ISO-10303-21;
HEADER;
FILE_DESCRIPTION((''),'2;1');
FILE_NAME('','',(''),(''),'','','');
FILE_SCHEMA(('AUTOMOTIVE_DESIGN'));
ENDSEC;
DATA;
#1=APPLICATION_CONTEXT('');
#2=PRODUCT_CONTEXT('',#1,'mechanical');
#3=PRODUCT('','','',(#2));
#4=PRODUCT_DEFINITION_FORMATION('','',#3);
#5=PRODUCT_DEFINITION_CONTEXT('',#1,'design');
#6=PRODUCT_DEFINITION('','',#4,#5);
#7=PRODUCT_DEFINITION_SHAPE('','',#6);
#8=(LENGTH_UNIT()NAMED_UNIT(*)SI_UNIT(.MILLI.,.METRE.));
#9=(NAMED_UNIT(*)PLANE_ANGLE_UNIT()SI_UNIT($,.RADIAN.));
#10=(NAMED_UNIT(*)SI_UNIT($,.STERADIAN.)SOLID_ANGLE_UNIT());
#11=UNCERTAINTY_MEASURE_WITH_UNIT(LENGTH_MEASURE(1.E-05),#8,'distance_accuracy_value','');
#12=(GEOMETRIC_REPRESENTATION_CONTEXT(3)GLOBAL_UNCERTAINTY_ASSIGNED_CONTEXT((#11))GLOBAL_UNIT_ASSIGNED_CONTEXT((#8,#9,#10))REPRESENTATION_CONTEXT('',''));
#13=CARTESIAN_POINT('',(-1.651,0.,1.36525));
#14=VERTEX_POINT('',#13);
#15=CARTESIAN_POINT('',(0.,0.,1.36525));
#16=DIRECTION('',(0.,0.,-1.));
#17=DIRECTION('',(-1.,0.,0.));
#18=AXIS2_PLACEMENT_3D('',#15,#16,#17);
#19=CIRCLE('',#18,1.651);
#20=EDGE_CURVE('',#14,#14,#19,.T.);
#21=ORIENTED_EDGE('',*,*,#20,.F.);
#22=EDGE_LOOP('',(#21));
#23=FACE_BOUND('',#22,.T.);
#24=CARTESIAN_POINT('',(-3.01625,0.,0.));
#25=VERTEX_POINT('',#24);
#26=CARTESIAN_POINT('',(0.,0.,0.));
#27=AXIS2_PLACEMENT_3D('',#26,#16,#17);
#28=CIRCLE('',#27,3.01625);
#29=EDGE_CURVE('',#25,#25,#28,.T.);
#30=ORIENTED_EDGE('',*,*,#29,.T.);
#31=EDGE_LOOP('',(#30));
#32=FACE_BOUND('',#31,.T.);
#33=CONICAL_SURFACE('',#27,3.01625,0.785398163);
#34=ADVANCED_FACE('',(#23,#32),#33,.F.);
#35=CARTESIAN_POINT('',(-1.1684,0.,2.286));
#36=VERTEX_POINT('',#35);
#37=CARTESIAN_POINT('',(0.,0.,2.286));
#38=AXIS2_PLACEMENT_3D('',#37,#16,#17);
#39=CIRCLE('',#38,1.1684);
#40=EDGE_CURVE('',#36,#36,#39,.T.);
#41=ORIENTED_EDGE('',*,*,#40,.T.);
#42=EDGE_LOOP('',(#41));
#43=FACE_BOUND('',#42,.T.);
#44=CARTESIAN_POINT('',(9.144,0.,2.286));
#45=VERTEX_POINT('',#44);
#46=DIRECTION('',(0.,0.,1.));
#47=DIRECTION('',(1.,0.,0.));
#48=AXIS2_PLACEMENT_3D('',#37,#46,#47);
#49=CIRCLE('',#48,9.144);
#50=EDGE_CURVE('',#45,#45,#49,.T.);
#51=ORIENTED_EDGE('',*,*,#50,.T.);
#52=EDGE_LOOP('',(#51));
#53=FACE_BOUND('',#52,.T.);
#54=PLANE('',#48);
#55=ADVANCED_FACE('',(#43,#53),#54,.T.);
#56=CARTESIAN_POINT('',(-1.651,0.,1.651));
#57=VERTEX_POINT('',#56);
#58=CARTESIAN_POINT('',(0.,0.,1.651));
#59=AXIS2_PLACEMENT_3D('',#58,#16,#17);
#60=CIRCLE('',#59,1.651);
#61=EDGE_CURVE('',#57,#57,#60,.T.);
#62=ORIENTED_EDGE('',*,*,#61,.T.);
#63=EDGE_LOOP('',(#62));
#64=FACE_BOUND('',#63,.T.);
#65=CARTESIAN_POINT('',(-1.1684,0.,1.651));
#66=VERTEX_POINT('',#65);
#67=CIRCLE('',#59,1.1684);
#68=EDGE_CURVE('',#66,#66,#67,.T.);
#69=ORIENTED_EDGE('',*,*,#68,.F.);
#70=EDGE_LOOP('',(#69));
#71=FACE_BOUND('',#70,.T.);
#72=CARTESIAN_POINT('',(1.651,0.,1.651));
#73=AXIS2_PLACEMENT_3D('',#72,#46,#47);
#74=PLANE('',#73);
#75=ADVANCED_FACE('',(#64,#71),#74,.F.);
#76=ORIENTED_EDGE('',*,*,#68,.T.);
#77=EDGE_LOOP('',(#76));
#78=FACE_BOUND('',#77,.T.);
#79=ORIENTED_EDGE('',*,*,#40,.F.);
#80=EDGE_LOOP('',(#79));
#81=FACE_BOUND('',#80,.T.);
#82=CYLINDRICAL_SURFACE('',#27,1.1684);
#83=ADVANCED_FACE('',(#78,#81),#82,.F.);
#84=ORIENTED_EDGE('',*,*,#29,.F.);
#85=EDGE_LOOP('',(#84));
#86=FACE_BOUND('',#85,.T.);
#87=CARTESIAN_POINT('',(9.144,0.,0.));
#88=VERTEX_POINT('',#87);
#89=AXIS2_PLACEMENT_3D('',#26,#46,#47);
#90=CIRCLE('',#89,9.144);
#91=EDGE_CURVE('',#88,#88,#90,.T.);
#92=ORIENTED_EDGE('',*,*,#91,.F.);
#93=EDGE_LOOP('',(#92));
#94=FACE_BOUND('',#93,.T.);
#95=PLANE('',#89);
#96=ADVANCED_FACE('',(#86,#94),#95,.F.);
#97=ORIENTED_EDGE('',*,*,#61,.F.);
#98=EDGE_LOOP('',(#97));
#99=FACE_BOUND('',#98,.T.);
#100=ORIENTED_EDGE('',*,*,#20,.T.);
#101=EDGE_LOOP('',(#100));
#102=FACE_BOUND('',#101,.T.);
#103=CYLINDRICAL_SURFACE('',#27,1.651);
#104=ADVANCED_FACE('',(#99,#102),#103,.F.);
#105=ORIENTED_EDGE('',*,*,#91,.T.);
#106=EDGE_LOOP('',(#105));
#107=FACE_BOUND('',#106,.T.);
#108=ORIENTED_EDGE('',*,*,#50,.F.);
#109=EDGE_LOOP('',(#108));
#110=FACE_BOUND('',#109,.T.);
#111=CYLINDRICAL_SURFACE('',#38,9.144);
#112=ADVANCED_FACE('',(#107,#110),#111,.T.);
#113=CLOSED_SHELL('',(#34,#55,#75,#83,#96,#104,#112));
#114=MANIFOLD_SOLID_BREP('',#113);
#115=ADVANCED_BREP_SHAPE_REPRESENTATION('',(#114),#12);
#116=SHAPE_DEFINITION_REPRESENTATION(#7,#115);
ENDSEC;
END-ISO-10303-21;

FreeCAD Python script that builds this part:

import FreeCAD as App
import Part
import Sketcher
Q = App.Units.Quantity

doc = App.newDocument("Part")
params = doc.addObject("Spreadsheet::Sheet", "Params")
for row, (alias, value) in enumerate([
    ("sketch1_diameter", "0.72 in"),
    ("pad1_length", "0.09 in"),
    ("sketch2_height", "0.09 in"),
    ("sketch2_width", "0.019 in"),
    ("sketch2_width2", "0.046 in"),
    ("sketch2_height2", "0.025 in"),
    ("groove_angle", "360 deg"),
], start=1):
    params.set(f"A{row}", alias)
    params.set(f"B{row}", "=" + value)
    params.setAlias(f"B{row}", alias)

body = doc.addObject("PartDesign::Body", "Body")

# Sketch on XY plane
sketch1 = body.newObject("Sketcher::SketchObject", "Sketch")
sketch1.AttachmentSupport = (doc.getObject("XY_Plane"), [""])
sketch1.MapMode = "FlatFace"
sketch1.addGeometry(Part.Circle(App.Vector(0, 0, 0), App.Vector(0, 0, 1), 9.144), False)
sketch1.addConstraint([
    Sketcher.Constraint("Coincident", 0, 3, -1, 1),
    Sketcher.Constraint("Diameter", 0, Q("0.72 in")),
])
sketch1.setExpression("Constraints[1]", "Params.sketch1_diameter")
pad1 = body.newObject("PartDesign::Pad", "Pad")
pad1.Profile = sketch1
pad1.setExpression("Length", "Params.pad1_length")

# Sketch on YZ plane
sketch2 = body.newObject("Sketcher::SketchObject", "Sketch001")
sketch2.AttachmentSupport = (doc.getObject("YZ_Plane"), [""])
sketch2.MapMode = "FlatFace"
sketch2.addGeometry([
    Part.LineSegment(App.Vector(0, 2.286, 0), App.Vector(0, 0, 0)),  # 0
    Part.LineSegment(App.Vector(0, 0, 0), App.Vector(3.01625, 0, 0)),  # 1
    Part.LineSegment(App.Vector(3.01625, 0, 0), App.Vector(1.651, 1.36525, 0)),  # 2
    Part.LineSegment(App.Vector(1.651, 1.36525, 0), App.Vector(1.651, 1.651, 0)),  # 3
    Part.LineSegment(App.Vector(1.651, 1.651, 0), App.Vector(1.1684, 1.651, 0)),  # 4
    Part.LineSegment(App.Vector(1.1684, 1.651, 0), App.Vector(1.1684, 2.286, 0)),  # 5
    Part.LineSegment(App.Vector(1.1684, 2.286, 0), App.Vector(0, 2.286, 0)),  # 6
], False)
sketch2.addConstraint([
    Sketcher.Constraint("Coincident", 0, 2, 1, 1),
    Sketcher.Constraint("Coincident", 1, 2, 2, 1),
    Sketcher.Constraint("Coincident", 2, 2, 3, 1),
    Sketcher.Constraint("Coincident", 3, 2, 4, 1),
    Sketcher.Constraint("Coincident", 4, 2, 5, 1),
    Sketcher.Constraint("Coincident", 5, 2, 6, 1),
    Sketcher.Constraint("Coincident", 6, 2, 0, 1),
    Sketcher.Constraint("Vertical", 0),
    Sketcher.Constraint("Horizontal", 1),
    Sketcher.Constraint("Vertical", 3),
    Sketcher.Constraint("Horizontal", 4),
    Sketcher.Constraint("Vertical", 5),
    Sketcher.Constraint("Horizontal", 6),
    Sketcher.Constraint("Coincident", 0, 2, -1, 1),
    Sketcher.Constraint("Angle", 2, Q("135 deg")),
    Sketcher.Constraint("DistanceY", 0, 2, 0, 1, Q("0.09 in")),
    Sketcher.Constraint("DistanceX", 4, 2, 4, 1, Q("0.019 in")),
    Sketcher.Constraint("DistanceX", 6, 2, 6, 1, Q("0.046 in")),
    Sketcher.Constraint("DistanceY", 5, 1, 5, 2, Q("0.025 in")),
    Sketcher.Constraint("DistanceX", 1, 1, 1, 2, Q("3.01625 mm")),
])
sketch2.setExpression("Constraints[15]", "Params.sketch2_height")
sketch2.setExpression("Constraints[16]", "Params.sketch2_width")
sketch2.setExpression("Constraints[17]", "Params.sketch2_width2")
sketch2.setExpression("Constraints[18]", "Params.sketch2_height2")
groove = body.newObject("PartDesign::Groove", "Groove")
groove.Profile = sketch2
groove.ReferenceAxis = (sketch2, ["V_Axis"])
groove.setExpression("Angle", "Params.groove_angle")

doc.recompute()
